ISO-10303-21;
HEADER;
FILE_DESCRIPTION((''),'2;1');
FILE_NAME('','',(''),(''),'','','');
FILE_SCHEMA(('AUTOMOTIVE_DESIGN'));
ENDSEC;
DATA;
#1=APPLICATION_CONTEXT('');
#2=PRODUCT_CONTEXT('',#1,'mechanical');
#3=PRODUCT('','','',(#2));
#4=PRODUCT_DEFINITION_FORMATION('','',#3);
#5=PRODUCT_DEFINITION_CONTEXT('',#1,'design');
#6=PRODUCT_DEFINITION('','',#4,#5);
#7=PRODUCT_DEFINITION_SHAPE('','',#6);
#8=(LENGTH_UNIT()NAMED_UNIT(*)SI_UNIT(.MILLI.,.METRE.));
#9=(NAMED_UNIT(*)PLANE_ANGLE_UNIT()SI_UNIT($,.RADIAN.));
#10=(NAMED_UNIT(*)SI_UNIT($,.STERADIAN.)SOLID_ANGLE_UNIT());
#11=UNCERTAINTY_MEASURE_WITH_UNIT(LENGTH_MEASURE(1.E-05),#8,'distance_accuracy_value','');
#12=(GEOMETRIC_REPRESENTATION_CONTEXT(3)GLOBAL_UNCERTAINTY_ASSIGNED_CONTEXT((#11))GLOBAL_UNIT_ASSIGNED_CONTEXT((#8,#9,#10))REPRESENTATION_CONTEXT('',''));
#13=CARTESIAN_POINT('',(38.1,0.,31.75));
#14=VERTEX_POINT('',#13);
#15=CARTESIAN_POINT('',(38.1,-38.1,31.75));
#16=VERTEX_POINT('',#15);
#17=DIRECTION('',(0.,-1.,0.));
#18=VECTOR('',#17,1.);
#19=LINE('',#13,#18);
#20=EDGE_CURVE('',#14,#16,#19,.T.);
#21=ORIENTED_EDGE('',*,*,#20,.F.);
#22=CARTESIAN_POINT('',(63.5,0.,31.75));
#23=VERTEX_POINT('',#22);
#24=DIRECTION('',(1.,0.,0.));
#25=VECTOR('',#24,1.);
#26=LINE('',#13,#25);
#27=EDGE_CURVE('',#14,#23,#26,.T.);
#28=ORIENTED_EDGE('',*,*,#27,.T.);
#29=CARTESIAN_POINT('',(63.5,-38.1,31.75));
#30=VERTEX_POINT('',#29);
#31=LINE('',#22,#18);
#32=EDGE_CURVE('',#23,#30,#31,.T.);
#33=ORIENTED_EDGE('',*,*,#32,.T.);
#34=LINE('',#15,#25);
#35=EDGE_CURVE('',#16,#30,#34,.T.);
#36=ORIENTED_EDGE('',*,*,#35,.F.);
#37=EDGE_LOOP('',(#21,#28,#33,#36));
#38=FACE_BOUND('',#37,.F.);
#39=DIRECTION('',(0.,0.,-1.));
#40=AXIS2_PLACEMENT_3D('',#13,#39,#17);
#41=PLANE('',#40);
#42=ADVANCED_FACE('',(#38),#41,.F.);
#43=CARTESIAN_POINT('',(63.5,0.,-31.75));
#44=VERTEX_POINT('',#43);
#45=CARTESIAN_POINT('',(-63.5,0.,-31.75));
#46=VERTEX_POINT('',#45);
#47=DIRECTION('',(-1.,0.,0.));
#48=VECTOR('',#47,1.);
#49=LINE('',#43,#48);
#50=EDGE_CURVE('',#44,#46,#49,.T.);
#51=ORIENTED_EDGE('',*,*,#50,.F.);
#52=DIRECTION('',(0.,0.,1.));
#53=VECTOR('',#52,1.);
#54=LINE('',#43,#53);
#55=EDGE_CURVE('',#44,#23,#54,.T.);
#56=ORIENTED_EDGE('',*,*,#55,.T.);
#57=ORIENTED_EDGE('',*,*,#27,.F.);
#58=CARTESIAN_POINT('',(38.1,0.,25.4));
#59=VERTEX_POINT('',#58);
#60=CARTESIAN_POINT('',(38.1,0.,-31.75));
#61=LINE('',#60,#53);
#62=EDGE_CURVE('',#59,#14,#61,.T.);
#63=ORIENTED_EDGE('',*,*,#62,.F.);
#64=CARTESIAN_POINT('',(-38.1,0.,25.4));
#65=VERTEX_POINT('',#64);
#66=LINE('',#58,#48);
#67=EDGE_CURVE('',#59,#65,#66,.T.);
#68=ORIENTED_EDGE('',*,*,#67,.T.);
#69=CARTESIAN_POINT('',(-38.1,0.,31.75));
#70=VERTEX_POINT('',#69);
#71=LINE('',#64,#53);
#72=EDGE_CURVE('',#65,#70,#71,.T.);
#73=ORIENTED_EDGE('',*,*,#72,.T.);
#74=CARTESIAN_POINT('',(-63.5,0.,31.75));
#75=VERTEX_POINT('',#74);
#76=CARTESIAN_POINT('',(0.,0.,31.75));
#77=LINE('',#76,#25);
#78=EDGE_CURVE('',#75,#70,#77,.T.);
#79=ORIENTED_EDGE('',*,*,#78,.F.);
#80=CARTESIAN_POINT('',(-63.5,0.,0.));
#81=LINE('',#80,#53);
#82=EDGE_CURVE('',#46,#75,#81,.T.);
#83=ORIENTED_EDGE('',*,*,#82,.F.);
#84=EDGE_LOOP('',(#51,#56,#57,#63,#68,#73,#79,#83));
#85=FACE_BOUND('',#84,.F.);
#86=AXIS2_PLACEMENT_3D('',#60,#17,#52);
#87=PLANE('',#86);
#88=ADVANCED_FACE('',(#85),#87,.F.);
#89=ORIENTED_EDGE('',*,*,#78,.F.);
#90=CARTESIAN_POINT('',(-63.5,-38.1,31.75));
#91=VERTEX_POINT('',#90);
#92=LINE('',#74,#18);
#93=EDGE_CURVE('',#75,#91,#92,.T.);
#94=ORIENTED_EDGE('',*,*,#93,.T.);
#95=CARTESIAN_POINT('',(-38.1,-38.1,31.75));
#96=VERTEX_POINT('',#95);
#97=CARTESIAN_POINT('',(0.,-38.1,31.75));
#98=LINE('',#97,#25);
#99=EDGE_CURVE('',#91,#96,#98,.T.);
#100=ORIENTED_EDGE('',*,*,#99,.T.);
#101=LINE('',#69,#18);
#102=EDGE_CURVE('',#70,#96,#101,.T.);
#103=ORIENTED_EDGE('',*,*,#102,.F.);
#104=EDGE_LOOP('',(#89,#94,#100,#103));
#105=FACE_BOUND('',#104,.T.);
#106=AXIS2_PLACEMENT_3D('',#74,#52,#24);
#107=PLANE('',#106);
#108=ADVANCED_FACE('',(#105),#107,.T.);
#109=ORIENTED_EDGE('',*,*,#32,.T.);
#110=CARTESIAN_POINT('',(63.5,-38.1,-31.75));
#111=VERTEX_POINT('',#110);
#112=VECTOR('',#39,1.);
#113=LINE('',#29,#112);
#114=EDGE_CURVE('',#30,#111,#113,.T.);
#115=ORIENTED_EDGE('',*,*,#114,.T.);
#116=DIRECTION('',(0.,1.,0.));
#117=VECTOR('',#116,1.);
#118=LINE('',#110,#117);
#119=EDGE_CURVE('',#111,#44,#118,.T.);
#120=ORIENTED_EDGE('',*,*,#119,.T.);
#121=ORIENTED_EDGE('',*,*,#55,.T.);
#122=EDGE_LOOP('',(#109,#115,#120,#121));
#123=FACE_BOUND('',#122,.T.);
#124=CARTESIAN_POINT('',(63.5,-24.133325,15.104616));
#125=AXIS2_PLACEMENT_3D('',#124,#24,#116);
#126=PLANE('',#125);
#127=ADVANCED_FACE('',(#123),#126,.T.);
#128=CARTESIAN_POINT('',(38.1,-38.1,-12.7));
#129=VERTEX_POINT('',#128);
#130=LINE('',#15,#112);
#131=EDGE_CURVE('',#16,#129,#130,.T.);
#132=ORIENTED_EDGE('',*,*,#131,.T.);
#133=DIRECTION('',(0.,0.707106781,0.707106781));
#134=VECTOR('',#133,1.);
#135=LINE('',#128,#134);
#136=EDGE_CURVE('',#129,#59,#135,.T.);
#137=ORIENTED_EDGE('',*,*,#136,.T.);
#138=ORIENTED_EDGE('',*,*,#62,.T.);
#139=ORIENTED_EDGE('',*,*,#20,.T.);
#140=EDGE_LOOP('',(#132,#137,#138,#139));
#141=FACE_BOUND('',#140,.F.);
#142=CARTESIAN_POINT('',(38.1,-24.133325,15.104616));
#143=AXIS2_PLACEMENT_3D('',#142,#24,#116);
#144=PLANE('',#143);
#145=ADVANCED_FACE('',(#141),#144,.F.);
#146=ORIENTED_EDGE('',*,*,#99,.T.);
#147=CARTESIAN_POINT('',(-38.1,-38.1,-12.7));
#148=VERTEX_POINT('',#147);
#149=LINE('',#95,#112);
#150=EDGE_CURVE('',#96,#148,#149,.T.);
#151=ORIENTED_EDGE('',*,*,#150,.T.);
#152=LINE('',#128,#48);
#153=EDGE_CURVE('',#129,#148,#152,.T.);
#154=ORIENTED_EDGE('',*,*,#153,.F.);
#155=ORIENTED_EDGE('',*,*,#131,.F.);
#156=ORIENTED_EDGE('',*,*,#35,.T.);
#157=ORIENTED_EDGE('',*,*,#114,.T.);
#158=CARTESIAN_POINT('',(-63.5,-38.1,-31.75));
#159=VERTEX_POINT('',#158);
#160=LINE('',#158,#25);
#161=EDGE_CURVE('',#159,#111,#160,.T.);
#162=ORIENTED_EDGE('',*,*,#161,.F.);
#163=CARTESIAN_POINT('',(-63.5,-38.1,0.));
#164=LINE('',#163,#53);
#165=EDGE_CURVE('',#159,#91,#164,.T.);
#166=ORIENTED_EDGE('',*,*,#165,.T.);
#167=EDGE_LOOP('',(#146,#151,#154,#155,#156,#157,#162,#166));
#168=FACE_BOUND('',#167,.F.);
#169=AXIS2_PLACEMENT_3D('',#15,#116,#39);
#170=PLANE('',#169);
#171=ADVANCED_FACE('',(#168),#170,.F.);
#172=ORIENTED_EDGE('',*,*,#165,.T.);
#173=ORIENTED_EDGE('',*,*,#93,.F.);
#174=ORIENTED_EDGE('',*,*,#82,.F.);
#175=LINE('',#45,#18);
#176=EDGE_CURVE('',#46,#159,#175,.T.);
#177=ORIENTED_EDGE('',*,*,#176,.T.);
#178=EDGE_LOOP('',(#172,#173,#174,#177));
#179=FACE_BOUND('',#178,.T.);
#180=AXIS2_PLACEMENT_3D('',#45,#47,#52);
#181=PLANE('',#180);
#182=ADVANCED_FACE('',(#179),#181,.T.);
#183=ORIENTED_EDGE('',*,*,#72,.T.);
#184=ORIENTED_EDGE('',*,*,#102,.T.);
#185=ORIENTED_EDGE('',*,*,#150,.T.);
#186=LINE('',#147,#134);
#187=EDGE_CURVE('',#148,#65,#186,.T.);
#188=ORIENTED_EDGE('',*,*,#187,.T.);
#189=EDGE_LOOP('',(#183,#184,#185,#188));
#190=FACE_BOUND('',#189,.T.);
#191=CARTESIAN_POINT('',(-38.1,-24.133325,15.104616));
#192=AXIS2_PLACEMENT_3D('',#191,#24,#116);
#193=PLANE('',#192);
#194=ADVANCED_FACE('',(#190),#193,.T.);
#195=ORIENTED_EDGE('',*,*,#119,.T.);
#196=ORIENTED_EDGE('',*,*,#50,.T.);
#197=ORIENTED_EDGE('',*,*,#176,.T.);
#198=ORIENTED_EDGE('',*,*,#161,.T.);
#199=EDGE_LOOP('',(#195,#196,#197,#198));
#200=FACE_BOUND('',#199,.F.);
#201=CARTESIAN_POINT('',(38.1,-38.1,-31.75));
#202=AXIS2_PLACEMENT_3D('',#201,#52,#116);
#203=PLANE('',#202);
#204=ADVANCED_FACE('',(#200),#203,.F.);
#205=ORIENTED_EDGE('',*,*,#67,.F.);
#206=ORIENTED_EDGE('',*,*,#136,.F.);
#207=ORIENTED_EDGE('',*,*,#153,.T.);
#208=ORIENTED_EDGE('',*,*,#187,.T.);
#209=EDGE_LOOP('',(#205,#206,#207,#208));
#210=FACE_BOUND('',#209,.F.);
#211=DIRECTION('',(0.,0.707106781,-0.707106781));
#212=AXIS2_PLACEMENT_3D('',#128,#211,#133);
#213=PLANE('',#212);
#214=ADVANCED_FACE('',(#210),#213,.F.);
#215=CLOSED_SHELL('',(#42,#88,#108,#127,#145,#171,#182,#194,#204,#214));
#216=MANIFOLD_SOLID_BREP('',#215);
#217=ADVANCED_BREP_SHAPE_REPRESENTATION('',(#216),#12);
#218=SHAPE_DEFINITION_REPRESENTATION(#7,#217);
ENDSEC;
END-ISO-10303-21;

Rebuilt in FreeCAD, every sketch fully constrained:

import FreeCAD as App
import Part
import Sketcher

V = App.Vector
Q = App.Units.Quantity

doc = App.newDocument("Part")
params = doc.addObject("Spreadsheet::Sheet", "Params")
for row, (alias, value) in enumerate([
    ("sketch1_width", "5 in"),
    ("sketch1_height", "2.5 in"),
    ("pad1_length", "1.5 in"),
    ("sketch2_width", "1.5 in"),
    ("sketch2_height", "2.5 in"),
    ("pocket1_length", "1 in"),
    ("sketch3_width", "1.5 in"),
    ("sketch3_height", "1.75 in"),
    ("pocket2_length", "3 in"),
    ("sketch4_width", "1.5 in"),
    ("sketch4_height", "2.5 in"),
    ("pad2_length", "1 in"),
], start=1):
    params.set(f"A{row}", alias)
    params.set(f"B{row}", "=" + value)
    params.setAlias(f"B{row}", alias)

body = doc.addObject("PartDesign::Body", "Body")

sketch1 = body.newObject("Sketcher::SketchObject", "Sketch")
sketch1.AttachmentSupport = (doc.getObject("XZ_Plane"), [""])
sketch1.MapMode = "FlatFace"
sketch1.addGeometry([
    Part.LineSegment(V(-63.5, 31.75, 0), V(-63.5, -31.75, 0)),
    Part.LineSegment(V(-63.5, -31.75, 0), V(63.5, -31.75, 0)),
    Part.LineSegment(V(63.5, -31.75, 0), V(63.5, 31.75, 0)),
    Part.LineSegment(V(63.5, 31.75, 0), V(-63.5, 31.75, 0)),
], False)
sketch1.addConstraint([
    Sketcher.Constraint("Coincident", 0, 2, 1, 1),
    Sketcher.Constraint("Coincident", 1, 2, 2, 1),
    Sketcher.Constraint("Coincident", 2, 2, 3, 1),
    Sketcher.Constraint("Coincident", 3, 2, 0, 1),
    Sketcher.Constraint("Vertical", 0),
    Sketcher.Constraint("Horizontal", 1),
    Sketcher.Constraint("Vertical", 2),
    Sketcher.Constraint("Horizontal", 3),
    Sketcher.Constraint("Symmetric", 0, 2, 2, 2, -1, 1),
    Sketcher.Constraint("DistanceX", 1, 1, 1, 2, Q("5 in")),
    Sketcher.Constraint("DistanceY", 0, 2, 0, 1, Q("2.5 in")),
])
sketch1.setExpression("Constraints[9]", "Params.sketch1_width")
sketch1.setExpression("Constraints[10]", "Params.sketch1_height")
pad1 = body.newObject("PartDesign::Pad", "Pad")
pad1.Profile = sketch1
pad1.setExpression("Length", "Params.pad1_length")

sketch2 = body.newObject("Sketcher::SketchObject", "Sketch001")
sketch2.AttachmentSupport = (doc.getObject("YZ_Plane"), [""])
sketch2.MapMode = "FlatFace"
sketch2.AttachmentOffset = App.Placement(V(0, 0, 2.5 * 25.4), App.Rotation())
sketch2.addGeometry([
    Part.LineSegment(V(-38.1, 31.75, 0), V(-38.1, -31.75, 0)),
    Part.LineSegment(V(-38.1, -31.75, 0), V(0, -31.75, 0)),
    Part.LineSegment(V(0, -31.75, 0), V(0, 31.75, 0)),
    Part.LineSegment(V(0, 31.75, 0), V(-38.1, 31.75, 0)),
], False)
sketch2.addConstraint([
    Sketcher.Constraint("Coincident", 0, 2, 1, 1),
    Sketcher.Constraint("Coincident", 1, 2, 2, 1),
    Sketcher.Constraint("Coincident", 2, 2, 3, 1),
    Sketcher.Constraint("Coincident", 3, 2, 0, 1),
    Sketcher.Constraint("Vertical", 0),
    Sketcher.Constraint("Horizontal", 1),
    Sketcher.Constraint("Vertical", 2),
    Sketcher.Constraint("Horizontal", 3),
    Sketcher.Constraint("Symmetric", 1, 2, 2, 2, -1, 1),
    Sketcher.Constraint("DistanceX", 1, 1, 1, 2, Q("1.5 in")),
    Sketcher.Constraint("DistanceY", 0, 2, 0, 1, Q("2.5 in")),
])
sketch2.setExpression("Constraints[9]", "Params.sketch2_width")
sketch2.setExpression("Constraints[10]", "Params.sketch2_height")
pocket1 = body.newObject("PartDesign::Pocket", "Pocket")
pocket1.Profile = sketch2
pocket1.setExpression("Length", "Params.pocket1_length")

sketch3 = body.newObject("Sketcher::SketchObject", "Sketch002")
sketch3.AttachmentSupport = (doc.getObject("YZ_Plane"), [""])
sketch3.MapMode = "FlatFace"
sketch3.AttachmentOffset = App.Placement(V(0, 0, 1.5 * 25.4), App.Rotation())
sketch3.addGeometry([
    Part.LineSegment(V(-38.1, 31.75, 0), V(-38.1, -12.7, 0)),
    Part.LineSegment(V(-38.1, -12.7, 0), V(0, 25.4, 0)),
    Part.LineSegment(V(0, 25.4, 0), V(0, 31.75, 0)),
    Part.LineSegment(V(0, 31.75, 0), V(-38.1, 31.75, 0)),
], False)
sketch3.addConstraint([
    Sketcher.Constraint("Coincident", 0, 2, 1, 1),
    Sketcher.Constraint("Coincident", 1, 2, 2, 1),
    Sketcher.Constraint("Coincident", 2, 2, 3, 1),
    Sketcher.Constraint("Coincident", 3, 2, 0, 1),
    Sketcher.Constraint("Vertical", 0),
    Sketcher.Constraint("Vertical", 2),
    Sketcher.Constraint("Horizontal", 3),
    Sketcher.Constraint("PointOnObject", 1, 2, -2),
    Sketcher.Constraint("DistanceX", 3, 2, 3, 1, Q("1.5 in")),
    Sketcher.Constraint("DistanceY", -1, 1, 1, 2, Q("1 in")),
    Sketcher.Constraint("Angle", 1, Q("45 deg")),
    Sketcher.Constraint("DistanceY", 0, 2, 0, 1, Q("1.75 in")),
])
sketch3.setExpression("Constraints[8]", "Params.sketch3_width")
sketch3.setExpression("Constraints[11]", "Params.sketch3_height")
pocket2 = body.newObject("PartDesign::Pocket", "Pocket001")
pocket2.Profile = sketch3
pocket2.setExpression("Length", "Params.pocket2_length")

sketch4 = body.newObject("Sketcher::SketchObject", "Sketch003")
sketch4.AttachmentSupport = (doc.getObject("YZ_Plane"), [""])
sketch4.MapMode = "FlatFace"
sketch4.AttachmentOffset = App.Placement(V(0, 0, 1.5 * 25.4), App.Rotation())
sketch4.addGeometry([
    Part.LineSegment(V(0, 31.75, 0), V(-38.1, 31.75, 0)),
    Part.LineSegment(V(-38.1, 31.75, 0), V(-38.1, -31.75, 0)),
    Part.LineSegment(V(-38.1, -31.75, 0), V(0, -31.75, 0)),
    Part.LineSegment(V(0, -31.75, 0), V(0, 31.75, 0)),
], False)
sketch4.addConstraint([
    Sketcher.Constraint("Coincident", 0, 2, 1, 1),
    Sketcher.Constraint("Coincident", 1, 2, 2, 1),
    Sketcher.Constraint("Coincident", 2, 2, 3, 1),
    Sketcher.Constraint("Coincident", 3, 2, 0, 1),
    Sketcher.Constraint("Horizontal", 0),
    Sketcher.Constraint("Vertical", 1),
    Sketcher.Constraint("Horizontal", 2),
    Sketcher.Constraint("Vertical", 3),
    Sketcher.Constraint("Symmetric", 2, 2, 3, 2, -1, 1),
    Sketcher.Constraint("DistanceX", 0, 2, 0, 1, Q("1.5 in")),
    Sketcher.Constraint("DistanceY", 1, 2, 1, 1, Q("2.5 in")),
])
sketch4.setExpression("Constraints[9]", "Params.sketch4_width")
sketch4.setExpression("Constraints[10]", "Params.sketch4_height")
pad2 = body.newObject("PartDesign::Pad", "Pad001")
pad2.Profile = sketch4
pad2.setExpression("Length", "Params.pad2_length")

doc.recompute()
